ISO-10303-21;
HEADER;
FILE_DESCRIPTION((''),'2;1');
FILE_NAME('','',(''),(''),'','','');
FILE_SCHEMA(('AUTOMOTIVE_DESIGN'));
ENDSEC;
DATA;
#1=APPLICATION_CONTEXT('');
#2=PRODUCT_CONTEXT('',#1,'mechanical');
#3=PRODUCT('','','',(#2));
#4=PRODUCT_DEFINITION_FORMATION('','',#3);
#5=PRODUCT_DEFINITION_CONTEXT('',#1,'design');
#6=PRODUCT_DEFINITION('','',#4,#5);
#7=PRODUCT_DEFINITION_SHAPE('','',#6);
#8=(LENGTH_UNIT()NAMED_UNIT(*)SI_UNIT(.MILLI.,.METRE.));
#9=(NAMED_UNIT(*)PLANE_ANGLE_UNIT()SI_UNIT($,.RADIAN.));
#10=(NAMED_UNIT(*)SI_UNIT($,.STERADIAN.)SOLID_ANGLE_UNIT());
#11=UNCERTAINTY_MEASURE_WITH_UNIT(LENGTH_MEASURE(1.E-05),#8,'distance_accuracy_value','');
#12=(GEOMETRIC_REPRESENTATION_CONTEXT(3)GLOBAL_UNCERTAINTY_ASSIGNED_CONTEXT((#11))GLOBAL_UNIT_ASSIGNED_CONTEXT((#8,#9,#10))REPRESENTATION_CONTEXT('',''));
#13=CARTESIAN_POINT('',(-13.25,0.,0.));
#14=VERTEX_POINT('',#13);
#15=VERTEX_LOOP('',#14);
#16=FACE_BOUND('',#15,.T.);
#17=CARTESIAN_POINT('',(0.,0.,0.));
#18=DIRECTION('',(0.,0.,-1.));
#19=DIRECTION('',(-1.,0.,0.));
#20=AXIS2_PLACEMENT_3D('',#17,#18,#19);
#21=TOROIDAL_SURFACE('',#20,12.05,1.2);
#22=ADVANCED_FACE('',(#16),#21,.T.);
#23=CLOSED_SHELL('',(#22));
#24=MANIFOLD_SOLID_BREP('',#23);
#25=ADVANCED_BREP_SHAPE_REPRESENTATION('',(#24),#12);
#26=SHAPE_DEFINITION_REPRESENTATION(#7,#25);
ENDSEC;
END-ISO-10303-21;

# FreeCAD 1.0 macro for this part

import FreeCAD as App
import Part
import Sketcher
from FreeCAD import Vector
Q = App.Units.Quantity

doc = App.newDocument("Part")
body = doc.addObject("PartDesign::Body", "Body")

sketch1 = body.newObject("Sketcher::SketchObject", "Sketch")
sketch1.AttachmentSupport = (doc.getObject("XZ_Plane"), [""])
sketch1.MapMode = "FlatFace"
sketch1.addGeometry(Part.Circle(Vector(-12.1, 0, 0), Vector(0, 0, 1), 1.2), False)
sketch1.addConstraint(Sketcher.Constraint("PointOnObject", 0, 3, -1))
sketch1.addConstraint(Sketcher.Constraint("Diameter", 0, Q("2.4 mm")))
sketch1.addConstraint(Sketcher.Constraint("DistanceX", 0, 3, -1, 1, Q("12.05 mm")))

sketch2 = body.newObject("Sketcher::SketchObject", "Sketch001")
sketch2.AttachmentSupport = (doc.getObject("XY_Plane"), [""])
sketch2.MapMode = "FlatFace"
sketch2.addGeometry(Part.Circle(Vector(0, 0, 0), Vector(0, 0, 1), 11), False)
sketch2.addConstraint(Sketcher.Constraint("Coincident", 0, 3, -1, 1))
sketch2.addConstraint(Sketcher.Constraint("Diameter", 0, Q("21.7 mm")))
doc.recompute()

additivepipe = body.newObject("PartDesign::AdditivePipe", "AdditivePipe")
additivepipe.Profile = sketch1
additivepipe.Spine = (sketch2, ["Edge1"])

doc.recompute()
